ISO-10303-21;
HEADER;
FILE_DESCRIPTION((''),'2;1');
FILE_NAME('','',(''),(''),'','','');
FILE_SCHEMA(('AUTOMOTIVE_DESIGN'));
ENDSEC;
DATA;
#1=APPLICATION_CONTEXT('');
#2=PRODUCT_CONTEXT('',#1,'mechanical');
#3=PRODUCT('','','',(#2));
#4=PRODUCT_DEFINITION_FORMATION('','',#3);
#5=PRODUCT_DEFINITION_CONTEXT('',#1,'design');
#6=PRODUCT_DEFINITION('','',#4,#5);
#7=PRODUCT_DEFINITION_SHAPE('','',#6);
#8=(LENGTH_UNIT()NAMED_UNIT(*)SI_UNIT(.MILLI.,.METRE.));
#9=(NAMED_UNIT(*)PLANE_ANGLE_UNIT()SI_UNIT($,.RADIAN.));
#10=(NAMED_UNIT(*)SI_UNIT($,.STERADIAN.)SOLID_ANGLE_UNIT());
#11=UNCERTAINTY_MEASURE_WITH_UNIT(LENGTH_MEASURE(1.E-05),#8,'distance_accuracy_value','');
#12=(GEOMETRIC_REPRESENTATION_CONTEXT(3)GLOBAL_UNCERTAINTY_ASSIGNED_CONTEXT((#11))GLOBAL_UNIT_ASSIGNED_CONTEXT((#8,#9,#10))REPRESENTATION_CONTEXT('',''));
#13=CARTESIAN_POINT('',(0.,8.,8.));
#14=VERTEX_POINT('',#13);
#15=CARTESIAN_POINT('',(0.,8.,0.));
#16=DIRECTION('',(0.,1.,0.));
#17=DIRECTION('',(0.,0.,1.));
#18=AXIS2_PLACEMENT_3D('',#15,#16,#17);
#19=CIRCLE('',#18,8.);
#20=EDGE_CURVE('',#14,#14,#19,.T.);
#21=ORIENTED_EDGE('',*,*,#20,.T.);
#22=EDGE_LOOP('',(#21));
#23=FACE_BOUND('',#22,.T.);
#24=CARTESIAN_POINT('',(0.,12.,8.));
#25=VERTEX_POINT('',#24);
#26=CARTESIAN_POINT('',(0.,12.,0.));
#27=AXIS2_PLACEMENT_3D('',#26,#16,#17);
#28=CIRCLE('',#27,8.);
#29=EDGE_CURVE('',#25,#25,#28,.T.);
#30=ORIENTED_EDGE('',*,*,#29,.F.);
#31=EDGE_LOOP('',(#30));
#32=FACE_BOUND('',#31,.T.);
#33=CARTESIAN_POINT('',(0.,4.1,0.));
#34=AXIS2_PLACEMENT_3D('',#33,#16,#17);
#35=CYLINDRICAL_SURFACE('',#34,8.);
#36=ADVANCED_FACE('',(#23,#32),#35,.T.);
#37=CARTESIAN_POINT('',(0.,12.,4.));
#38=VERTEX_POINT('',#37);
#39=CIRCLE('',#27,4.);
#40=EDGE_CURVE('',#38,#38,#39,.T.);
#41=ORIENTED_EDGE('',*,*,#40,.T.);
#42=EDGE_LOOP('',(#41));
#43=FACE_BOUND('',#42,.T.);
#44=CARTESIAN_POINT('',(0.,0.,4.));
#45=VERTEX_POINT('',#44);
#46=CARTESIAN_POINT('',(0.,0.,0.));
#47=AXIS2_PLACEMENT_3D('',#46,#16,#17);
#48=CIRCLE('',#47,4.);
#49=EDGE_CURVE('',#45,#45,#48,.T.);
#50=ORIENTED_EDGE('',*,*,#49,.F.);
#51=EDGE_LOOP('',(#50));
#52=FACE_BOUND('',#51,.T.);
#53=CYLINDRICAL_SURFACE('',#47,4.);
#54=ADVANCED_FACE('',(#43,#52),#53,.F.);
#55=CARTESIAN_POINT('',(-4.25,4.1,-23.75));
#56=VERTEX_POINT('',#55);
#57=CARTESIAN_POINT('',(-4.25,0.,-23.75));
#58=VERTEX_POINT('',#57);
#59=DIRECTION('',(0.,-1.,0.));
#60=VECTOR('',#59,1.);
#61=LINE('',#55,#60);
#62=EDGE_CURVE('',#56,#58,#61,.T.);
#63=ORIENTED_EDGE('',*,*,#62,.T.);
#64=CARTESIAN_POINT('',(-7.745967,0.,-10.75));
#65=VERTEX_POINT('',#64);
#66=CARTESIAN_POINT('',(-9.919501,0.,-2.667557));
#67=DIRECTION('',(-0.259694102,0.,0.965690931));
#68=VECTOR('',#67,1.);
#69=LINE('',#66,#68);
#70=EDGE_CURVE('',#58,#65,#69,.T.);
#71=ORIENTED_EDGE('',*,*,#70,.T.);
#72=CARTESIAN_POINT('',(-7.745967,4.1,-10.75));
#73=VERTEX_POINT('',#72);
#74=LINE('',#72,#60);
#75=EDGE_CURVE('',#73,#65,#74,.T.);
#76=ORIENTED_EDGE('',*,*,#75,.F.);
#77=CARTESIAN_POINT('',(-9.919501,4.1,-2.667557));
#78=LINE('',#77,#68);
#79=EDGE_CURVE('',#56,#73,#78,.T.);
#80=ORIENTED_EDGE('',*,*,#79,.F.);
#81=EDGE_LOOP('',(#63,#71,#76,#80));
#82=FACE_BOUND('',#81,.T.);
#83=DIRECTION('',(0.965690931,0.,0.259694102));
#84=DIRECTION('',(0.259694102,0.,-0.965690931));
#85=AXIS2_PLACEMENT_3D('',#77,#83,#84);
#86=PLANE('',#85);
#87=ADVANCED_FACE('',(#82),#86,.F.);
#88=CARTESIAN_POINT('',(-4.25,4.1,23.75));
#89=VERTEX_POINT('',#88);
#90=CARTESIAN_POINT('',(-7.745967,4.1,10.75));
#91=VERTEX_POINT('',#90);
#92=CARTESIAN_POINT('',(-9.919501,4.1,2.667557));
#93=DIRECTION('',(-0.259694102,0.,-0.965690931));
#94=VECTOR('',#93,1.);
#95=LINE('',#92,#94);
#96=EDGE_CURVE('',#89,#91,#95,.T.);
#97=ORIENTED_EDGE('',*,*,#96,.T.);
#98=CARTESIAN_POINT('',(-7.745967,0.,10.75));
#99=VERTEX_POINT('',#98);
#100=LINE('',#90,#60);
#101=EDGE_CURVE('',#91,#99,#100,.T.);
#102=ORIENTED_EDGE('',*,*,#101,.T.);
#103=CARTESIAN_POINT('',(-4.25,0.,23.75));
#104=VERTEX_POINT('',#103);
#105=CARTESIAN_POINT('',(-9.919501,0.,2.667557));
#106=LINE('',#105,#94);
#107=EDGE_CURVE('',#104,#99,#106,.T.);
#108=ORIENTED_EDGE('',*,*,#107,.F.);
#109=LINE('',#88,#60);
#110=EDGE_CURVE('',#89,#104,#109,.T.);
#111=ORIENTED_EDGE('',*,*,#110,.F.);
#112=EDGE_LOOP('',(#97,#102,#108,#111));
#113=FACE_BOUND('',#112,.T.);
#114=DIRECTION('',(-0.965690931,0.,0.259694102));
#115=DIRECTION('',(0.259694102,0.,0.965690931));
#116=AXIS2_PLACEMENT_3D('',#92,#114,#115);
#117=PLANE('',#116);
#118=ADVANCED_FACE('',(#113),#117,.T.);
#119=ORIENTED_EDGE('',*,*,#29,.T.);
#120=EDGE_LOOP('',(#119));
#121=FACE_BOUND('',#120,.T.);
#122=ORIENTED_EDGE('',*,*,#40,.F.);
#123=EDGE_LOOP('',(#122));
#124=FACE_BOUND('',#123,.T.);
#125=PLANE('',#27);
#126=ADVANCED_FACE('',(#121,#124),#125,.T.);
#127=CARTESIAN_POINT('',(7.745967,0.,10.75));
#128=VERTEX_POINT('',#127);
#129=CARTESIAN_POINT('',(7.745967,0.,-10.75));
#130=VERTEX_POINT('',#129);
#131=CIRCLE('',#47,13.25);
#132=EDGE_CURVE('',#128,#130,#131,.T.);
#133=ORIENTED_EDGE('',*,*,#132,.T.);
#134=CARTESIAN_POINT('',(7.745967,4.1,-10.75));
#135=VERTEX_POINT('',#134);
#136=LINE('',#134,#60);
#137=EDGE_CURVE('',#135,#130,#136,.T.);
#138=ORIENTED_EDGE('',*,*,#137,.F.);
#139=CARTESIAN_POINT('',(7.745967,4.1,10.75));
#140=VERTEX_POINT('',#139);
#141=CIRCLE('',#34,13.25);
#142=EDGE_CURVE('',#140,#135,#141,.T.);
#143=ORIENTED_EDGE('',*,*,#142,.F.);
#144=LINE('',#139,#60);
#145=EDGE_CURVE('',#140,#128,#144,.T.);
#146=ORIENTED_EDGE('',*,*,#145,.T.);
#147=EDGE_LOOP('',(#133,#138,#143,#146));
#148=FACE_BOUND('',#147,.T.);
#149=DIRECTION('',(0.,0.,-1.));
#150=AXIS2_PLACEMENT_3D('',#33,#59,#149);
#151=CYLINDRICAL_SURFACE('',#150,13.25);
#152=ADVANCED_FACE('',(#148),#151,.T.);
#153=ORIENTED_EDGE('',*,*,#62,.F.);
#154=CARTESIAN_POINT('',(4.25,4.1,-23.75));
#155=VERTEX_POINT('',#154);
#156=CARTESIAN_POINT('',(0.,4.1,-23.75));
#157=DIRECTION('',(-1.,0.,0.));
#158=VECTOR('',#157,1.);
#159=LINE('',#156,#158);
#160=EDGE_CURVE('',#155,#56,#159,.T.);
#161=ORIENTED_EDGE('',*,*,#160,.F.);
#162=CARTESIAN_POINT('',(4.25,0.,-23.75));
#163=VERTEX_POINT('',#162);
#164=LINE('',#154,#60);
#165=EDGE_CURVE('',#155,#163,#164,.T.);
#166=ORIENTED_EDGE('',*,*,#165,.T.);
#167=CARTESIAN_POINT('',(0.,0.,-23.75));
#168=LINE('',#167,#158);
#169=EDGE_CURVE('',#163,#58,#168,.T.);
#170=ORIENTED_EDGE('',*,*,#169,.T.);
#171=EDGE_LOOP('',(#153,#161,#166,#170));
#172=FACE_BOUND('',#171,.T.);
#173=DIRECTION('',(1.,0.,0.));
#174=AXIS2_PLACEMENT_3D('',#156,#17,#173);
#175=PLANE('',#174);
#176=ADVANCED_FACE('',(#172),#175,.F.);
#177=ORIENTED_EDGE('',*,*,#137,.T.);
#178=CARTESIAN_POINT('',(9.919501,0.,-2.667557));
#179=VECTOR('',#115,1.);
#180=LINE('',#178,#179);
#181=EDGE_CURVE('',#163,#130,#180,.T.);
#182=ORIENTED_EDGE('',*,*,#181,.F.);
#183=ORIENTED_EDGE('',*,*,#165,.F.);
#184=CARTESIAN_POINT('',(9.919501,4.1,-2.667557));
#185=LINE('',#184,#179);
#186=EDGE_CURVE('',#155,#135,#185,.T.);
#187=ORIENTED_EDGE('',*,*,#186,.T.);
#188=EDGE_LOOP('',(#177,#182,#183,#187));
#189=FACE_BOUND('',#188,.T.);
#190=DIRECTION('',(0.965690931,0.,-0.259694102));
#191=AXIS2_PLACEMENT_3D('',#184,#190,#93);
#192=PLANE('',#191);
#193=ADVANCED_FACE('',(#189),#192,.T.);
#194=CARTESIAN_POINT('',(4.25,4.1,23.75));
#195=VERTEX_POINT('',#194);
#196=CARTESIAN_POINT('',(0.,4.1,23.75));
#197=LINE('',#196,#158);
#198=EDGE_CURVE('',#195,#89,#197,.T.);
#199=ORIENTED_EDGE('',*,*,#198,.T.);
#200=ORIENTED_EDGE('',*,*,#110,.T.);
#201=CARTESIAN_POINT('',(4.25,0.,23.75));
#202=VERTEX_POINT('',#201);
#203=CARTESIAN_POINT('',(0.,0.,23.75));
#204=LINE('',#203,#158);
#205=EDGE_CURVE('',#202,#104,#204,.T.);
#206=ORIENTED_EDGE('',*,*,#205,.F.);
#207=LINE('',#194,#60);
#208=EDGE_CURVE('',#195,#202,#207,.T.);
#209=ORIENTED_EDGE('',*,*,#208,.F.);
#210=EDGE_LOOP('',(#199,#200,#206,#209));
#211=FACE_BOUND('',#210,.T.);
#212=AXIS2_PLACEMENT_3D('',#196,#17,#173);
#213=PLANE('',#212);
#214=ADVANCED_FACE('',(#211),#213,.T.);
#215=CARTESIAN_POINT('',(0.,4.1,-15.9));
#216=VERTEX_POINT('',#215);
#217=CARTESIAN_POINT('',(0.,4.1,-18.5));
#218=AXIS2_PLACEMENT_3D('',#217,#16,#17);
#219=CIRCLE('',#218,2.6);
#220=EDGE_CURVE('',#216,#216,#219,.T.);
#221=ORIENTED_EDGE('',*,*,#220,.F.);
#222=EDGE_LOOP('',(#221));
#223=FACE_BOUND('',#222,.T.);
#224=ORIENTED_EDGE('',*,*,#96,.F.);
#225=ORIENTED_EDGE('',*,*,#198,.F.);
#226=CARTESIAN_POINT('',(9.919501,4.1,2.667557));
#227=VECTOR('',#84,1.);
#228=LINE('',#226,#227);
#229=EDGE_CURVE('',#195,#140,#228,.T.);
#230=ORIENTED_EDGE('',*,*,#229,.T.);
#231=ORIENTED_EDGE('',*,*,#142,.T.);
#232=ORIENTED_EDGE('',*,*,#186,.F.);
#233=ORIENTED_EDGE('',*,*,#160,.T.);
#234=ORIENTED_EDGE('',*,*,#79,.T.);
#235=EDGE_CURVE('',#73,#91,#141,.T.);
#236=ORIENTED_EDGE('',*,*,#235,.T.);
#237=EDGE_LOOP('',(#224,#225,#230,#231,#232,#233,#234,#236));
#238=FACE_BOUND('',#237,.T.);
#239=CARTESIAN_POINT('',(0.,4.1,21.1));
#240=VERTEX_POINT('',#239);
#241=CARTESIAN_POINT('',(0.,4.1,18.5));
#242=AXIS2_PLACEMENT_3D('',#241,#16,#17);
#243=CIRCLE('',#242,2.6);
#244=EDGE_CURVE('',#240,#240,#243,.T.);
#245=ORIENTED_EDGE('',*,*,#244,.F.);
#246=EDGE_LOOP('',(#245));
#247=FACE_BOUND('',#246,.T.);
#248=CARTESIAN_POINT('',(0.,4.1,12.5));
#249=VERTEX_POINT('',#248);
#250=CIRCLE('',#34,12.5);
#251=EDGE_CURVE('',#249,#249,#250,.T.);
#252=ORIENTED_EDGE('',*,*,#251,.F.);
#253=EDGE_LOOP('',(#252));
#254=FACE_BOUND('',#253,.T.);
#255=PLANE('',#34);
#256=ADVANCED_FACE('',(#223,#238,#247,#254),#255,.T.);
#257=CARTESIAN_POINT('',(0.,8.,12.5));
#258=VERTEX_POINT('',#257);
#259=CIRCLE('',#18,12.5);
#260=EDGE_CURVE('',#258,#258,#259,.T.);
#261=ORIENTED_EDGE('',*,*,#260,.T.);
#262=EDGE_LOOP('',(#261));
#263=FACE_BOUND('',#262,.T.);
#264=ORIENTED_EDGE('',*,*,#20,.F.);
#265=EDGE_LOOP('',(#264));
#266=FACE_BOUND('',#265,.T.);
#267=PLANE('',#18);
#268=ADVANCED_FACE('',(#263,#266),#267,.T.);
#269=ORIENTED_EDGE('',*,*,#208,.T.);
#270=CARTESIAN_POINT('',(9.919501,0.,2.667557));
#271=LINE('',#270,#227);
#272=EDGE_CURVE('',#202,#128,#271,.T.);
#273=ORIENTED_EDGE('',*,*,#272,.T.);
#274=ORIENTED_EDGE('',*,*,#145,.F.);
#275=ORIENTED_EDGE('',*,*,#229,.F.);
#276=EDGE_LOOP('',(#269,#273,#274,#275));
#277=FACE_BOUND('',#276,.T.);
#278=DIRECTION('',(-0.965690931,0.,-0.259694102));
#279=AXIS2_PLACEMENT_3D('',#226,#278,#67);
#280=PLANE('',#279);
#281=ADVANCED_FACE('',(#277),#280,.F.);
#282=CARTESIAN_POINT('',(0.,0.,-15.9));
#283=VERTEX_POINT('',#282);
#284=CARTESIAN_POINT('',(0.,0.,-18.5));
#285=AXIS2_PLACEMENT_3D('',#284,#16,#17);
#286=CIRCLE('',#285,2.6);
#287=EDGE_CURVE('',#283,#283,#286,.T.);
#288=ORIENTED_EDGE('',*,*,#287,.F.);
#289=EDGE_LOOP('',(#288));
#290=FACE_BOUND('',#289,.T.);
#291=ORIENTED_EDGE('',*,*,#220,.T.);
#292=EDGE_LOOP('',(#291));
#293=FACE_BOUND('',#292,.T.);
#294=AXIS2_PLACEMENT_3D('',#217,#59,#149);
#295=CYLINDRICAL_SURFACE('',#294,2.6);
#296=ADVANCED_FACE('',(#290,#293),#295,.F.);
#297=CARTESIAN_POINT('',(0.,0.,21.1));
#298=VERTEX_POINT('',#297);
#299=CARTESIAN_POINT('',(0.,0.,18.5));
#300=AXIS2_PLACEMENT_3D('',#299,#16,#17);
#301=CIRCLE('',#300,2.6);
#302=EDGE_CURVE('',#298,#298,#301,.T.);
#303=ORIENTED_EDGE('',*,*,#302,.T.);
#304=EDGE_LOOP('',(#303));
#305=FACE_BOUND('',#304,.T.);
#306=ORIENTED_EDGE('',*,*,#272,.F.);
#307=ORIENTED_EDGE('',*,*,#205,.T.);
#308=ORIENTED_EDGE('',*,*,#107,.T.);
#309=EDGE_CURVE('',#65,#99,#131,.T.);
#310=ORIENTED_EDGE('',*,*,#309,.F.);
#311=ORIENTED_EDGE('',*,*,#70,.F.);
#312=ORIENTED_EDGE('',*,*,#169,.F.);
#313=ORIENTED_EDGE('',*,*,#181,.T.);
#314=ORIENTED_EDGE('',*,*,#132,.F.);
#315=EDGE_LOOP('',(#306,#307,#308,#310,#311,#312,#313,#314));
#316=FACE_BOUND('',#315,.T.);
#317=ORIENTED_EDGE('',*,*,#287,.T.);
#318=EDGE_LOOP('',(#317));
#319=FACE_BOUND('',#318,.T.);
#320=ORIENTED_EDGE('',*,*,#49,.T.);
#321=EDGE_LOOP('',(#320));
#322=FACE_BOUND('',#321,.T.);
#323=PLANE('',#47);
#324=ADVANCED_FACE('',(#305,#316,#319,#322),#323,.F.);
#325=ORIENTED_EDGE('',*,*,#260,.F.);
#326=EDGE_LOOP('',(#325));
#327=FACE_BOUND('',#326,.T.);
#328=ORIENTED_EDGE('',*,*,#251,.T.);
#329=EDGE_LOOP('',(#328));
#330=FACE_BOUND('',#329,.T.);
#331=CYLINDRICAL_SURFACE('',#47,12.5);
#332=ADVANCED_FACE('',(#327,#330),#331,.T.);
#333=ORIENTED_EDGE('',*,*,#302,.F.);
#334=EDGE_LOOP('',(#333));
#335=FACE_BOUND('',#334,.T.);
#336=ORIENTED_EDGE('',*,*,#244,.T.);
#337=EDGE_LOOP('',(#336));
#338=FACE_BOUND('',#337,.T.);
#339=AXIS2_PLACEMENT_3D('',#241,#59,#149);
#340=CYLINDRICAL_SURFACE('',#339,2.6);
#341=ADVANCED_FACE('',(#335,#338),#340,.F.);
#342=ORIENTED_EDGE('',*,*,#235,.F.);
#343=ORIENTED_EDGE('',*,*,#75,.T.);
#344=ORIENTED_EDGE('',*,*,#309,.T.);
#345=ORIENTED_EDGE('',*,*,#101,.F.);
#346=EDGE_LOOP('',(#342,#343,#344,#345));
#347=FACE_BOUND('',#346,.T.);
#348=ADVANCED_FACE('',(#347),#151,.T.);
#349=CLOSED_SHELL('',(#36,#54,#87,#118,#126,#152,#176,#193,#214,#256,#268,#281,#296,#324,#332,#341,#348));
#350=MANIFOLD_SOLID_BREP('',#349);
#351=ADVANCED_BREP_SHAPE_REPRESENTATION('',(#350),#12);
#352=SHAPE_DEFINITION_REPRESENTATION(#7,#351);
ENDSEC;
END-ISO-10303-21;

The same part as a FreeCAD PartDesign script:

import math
import FreeCAD as App
import Part
import Sketcher
from FreeCAD import Vector

doc = App.newDocument("Part")
body = doc.addObject("PartDesign::Body", "Body")

sketch1 = doc.addObject("Sketcher::SketchObject", "Sketch")
body.addObject(sketch1)
sketch1.AttachmentSupport = (doc.XZ_Plane, [""])
sketch1.MapMode = "FlatFace"
sketch1.addGeometry([
    Part.LineSegment(Vector(7.7, -10.8, 0), Vector(4.2, -23.8, 0)),
    Part.LineSegment(Vector(4.2, -23.8, 0), Vector(-4.2, -23.8, 0)),
    Part.LineSegment(Vector(-4.2, -23.8, 0), Vector(-7.7, -10.8, 0)),
    Part.ArcOfCircle(Part.Circle(Vector(0, 0, 0), Vector(0, 0, 1), 13.2), math.radians(126), math.radians(234)),
    Part.LineSegment(Vector(-7.7, 10.8, 0), Vector(-4.2, 23.8, 0)),
    Part.LineSegment(Vector(-4.2, 23.8, 0), Vector(4.2, 23.8, 0)),
    Part.LineSegment(Vector(4.2, 23.8, 0), Vector(7.7, 10.8, 0)),
    Part.ArcOfCircle(Part.Circle(Vector(0, 0, 0), Vector(0, 0, 1), 13.2), math.radians(-54), math.radians(54)),
    Part.Circle(Vector(0, -18.5, 0), Vector(0, 0, 1), 2.6),
    Part.Circle(Vector(0, 18.5, 0), Vector(0, 0, 1), 2.6),
], False)
sketch1.addConstraint([
    Sketcher.Constraint("Coincident", 0, 2, 1, 1),
    Sketcher.Constraint("Coincident", 1, 2, 2, 1),
    Sketcher.Constraint("Coincident", 2, 2, 3, 2),
    Sketcher.Constraint("Coincident", 3, 1, 4, 1),
    Sketcher.Constraint("Coincident", 4, 2, 5, 1),
    Sketcher.Constraint("Coincident", 5, 2, 6, 1),
    Sketcher.Constraint("Coincident", 6, 2, 7, 2),
    Sketcher.Constraint("Coincident", 7, 1, 0, 1),
    Sketcher.Constraint("Horizontal", 1),
    Sketcher.Constraint("Horizontal", 5),
    Sketcher.Constraint("Coincident", 3, 3, -1, 1),
    Sketcher.Constraint("Coincident", 7, 3, -1, 1),
    Sketcher.Constraint("Equal", 3, 7),
    Sketcher.Constraint("Equal", 8, 9),
    Sketcher.Constraint("Symmetric", 8, 3, 9, 3, -1, 1),
    Sketcher.Constraint("Symmetric", 0, 2, 4, 2, -1, 1),
    Sketcher.Constraint("PointOnObject", 8, 3, -2),
    Sketcher.Constraint("Parallel", 0, 4),
    Sketcher.Constraint("Parallel", 2, 6),
    Sketcher.Constraint("Horizontal", 3, 1, 6, 2),
    Sketcher.Constraint("Horizontal", 2, 2, 7, 1),
    Sketcher.Constraint("Vertical", 1, 2, 4, 2),
    Sketcher.Constraint("Diameter", 8, 5.2),
    Sketcher.Constraint("Radius", 3, 13.25),
    Sketcher.Constraint("DistanceX", 1, 2, 1, 1, 8.5),
    Sketcher.Constraint("DistanceY", 8, 3, 9, 3, 37.0),
    Sketcher.Constraint("DistanceY", 1, 2, 2, 2, 13.0),
    Sketcher.Constraint("DistanceY", 2, 2, 3, 1, 21.5),
])
pad1 = doc.addObject("PartDesign::Pad", "Pad")
body.addObject(pad1)
pad1.Profile = sketch1
pad1.Length = 4.1
pad1.Reversed = True

sketch2 = doc.addObject("Sketcher::SketchObject", "Sketch001")
body.addObject(sketch2)
sketch2.AttachmentSupport = (doc.XZ_Plane, [""])
sketch2.MapMode = "FlatFace"
sketch2.AttachmentOffset = App.Placement(Vector(0, 0, -4.1), App.Rotation())
sketch2.addGeometry(Part.Circle(Vector(0, 0, 0), Vector(0, 0, 1), 12), False)
sketch2.addConstraint([
    Sketcher.Constraint("Coincident", 0, 3, -1, 1),
    Sketcher.Constraint("Diameter", 0, 25.0),
])
pad2 = doc.addObject("PartDesign::Pad", "Pad001")
body.addObject(pad2)
pad2.Profile = sketch2
pad2.Type = "TwoLengths"
pad2.Length = 3.9
pad2.Length2 = 4.1
pad2.Reversed = True

sketch3 = doc.addObject("Sketcher::SketchObject", "Sketch002")
body.addObject(sketch3)
sketch3.AttachmentSupport = (doc.XZ_Plane, [""])
sketch3.MapMode = "FlatFace"
sketch3.AttachmentOffset = App.Placement(Vector(0, 0, -8), App.Rotation())
sketch3.addGeometry(Part.Circle(Vector(0, 0, 0), Vector(0, 0, 1), 8), False)
sketch3.addConstraint([
    Sketcher.Constraint("Coincident", 0, 3, -1, 1),
    Sketcher.Constraint("Diameter", 0, 16.0),
])
pad3 = doc.addObject("PartDesign::Pad", "Pad002")
body.addObject(pad3)
pad3.Profile = sketch3
pad3.Type = "TwoLengths"
pad3.Length = 4
pad3.Length2 = 3.9
pad3.Reversed = True

sketch4 = doc.addObject("Sketcher::SketchObject", "Sketch003")
body.addObject(sketch4)
sketch4.AttachmentSupport = (doc.XZ_Plane, [""])
sketch4.MapMode = "FlatFace"
sketch4.AttachmentOffset = App.Placement(Vector(0, 0, -12), App.Rotation())
sketch4.addGeometry(Part.Circle(Vector(0, 0, 0), Vector(0, 0, 1), 4), False)
sketch4.addConstraint([
    Sketcher.Constraint("Coincident", 0, 3, -1, 1),
    Sketcher.Constraint("Diameter", 0, 8.0),
])
pocket1 = doc.addObject("PartDesign::Pocket", "Pocket")
body.addObject(pocket1)
pocket1.Profile = sketch4
pocket1.Type = "ThroughAll"
pocket1.Reversed = True

doc.recompute()
